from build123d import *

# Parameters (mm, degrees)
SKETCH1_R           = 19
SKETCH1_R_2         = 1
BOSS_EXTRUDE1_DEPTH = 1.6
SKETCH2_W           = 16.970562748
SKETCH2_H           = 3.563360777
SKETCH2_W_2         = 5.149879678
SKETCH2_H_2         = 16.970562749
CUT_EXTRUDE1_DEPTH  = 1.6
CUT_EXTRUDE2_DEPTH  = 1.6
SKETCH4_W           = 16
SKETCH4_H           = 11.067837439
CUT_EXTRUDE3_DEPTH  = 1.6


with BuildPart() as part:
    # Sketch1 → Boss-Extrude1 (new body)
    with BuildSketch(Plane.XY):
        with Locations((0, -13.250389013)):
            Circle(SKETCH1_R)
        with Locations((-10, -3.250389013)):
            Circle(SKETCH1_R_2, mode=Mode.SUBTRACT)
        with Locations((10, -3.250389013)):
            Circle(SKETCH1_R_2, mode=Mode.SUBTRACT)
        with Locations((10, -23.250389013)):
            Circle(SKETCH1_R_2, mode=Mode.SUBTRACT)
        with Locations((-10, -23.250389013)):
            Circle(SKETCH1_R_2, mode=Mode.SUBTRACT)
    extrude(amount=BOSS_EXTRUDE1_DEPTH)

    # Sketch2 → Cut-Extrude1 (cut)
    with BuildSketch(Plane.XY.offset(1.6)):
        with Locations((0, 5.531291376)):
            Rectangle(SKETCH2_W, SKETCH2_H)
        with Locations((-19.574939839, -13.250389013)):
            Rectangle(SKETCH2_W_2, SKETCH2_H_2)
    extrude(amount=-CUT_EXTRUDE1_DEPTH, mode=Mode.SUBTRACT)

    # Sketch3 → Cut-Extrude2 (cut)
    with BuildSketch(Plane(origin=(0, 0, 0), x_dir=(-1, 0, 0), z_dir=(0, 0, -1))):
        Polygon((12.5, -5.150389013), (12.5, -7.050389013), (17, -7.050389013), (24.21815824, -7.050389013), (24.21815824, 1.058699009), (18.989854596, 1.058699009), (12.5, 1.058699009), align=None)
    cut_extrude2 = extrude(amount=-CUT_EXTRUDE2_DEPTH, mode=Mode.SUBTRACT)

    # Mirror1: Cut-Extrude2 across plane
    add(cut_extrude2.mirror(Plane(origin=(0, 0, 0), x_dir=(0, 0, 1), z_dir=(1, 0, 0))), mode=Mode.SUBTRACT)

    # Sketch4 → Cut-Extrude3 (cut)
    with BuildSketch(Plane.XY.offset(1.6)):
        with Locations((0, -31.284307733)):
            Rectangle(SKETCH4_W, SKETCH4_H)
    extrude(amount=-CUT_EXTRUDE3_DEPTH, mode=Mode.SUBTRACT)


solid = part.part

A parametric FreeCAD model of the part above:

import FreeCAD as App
import Part
import Sketcher
Q = App.Units.Quantity


def add_polygon(sketch, points):
    """Adds a closed chain of lines whose ends are joined by coincident constraints."""
    first, n = sketch.GeometryCount, len(points)
    for a, b in zip(points, points[1:] + points[:1]):
        sketch.addGeometry(Part.LineSegment(App.Vector(*a, 0), App.Vector(*b, 0)), False)
    for i in range(n):
        sketch.addConstraint(Sketcher.Constraint("Coincident", first + i, 2, first + (i + 1) % n, 1))

doc = App.newDocument("Part")
body = doc.addObject("PartDesign::Body", "Body")

sketch1 = doc.addObject("Sketcher::SketchObject", "Sketch")
body.addObject(sketch1)
sketch1.AttachmentSupport = (doc.XY_Plane, [""])
sketch1.MapMode = "FlatFace"
sketch1.addGeometry(Part.Circle(App.Vector(0, -13.3, 0), App.Vector(0, 0, 1), 19), False)
sketch1.addGeometry(Part.Circle(App.Vector(-10, -23.3, 0), App.Vector(0, 0, 1), 1), False)
sketch1.addGeometry(Part.Circle(App.Vector(10, -23.3, 0), App.Vector(0, 0, 1), 1), False)
sketch1.addGeometry(Part.Circle(App.Vector(-10, -3.3, 0), App.Vector(0, 0, 1), 1), False)
sketch1.addGeometry(Part.Circle(App.Vector(10, -3.3, 0), App.Vector(0, 0, 1), 1), False)
sketch1.addConstraint(Sketcher.Constraint("Equal", 1, 2))
sketch1.addConstraint(Sketcher.Constraint("Equal", 2, 3))
sketch1.addConstraint(Sketcher.Constraint("Equal", 3, 4))
sketch1.addConstraint(Sketcher.Constraint("Symmetric", 1, 3, 2, 3, -2))
sketch1.addConstraint(Sketcher.Constraint("Symmetric", 3, 3, 4, 3, -2))
sketch1.addConstraint(Sketcher.Constraint("PointOnObject", 0, 3, -2))
sketch1.addConstraint(Sketcher.Constraint("Vertical", 1, 3, 3, 3))
sketch1.addConstraint(Sketcher.Constraint("Diameter", 0, Q("38 mm")))
sketch1.addConstraint(Sketcher.Constraint("Diameter", 1, Q("2 mm")))
sketch1.addConstraint(Sketcher.Constraint("DistanceX", 1, 3, -1, 1, Q("10 mm")))
sketch1.addConstraint(Sketcher.Constraint("DistanceY", 1, 3, 0, 3, Q("10 mm")))
sketch1.addConstraint(Sketcher.Constraint("DistanceY", 0, 3, 3, 3, Q("10 mm")))
sketch1.addConstraint(Sketcher.Constraint("DistanceY", 0, 3, -1, 1, Q("13.250389 mm")))
pad1 = doc.addObject("PartDesign::Pad", "Pad")
body.addObject(pad1)
pad1.Profile = sketch1
pad1.Length = 1.6

sketch2 = doc.addObject("Sketcher::SketchObject", "Sketch001")
body.addObject(sketch2)
sketch2.AttachmentSupport = (doc.XY_Plane, [""])
sketch2.MapMode = "FlatFace"
sketch2.AttachmentOffset = App.Placement(App.Vector(0, 0, 1.6), App.Rotation())
add_polygon(sketch2, [(-8.5, 7.3), (-8.5, 3.7), (8.5, 3.7), (8.5, 7.3)])
add_polygon(sketch2, [(-22.1, -4.8), (-22.1, -21.7), (-17, -21.7), (-17, -4.8)])
sketch2.addConstraint(Sketcher.Constraint("Vertical", 0))
sketch2.addConstraint(Sketcher.Constraint("Horizontal", 1))
sketch2.addConstraint(Sketcher.Constraint("Vertical", 2))
sketch2.addConstraint(Sketcher.Constraint("Horizontal", 3))
sketch2.addConstraint(Sketcher.Constraint("Vertical", 4))
sketch2.addConstraint(Sketcher.Constraint("Horizontal", 5))
sketch2.addConstraint(Sketcher.Constraint("Vertical", 6))
sketch2.addConstraint(Sketcher.Constraint("Horizontal", 7))
sketch2.addConstraint(Sketcher.Constraint("Equal", 3, 4))
sketch2.addConstraint(Sketcher.Constraint("DistanceX", 5, 2, -1, 1, Q("17 mm")))
sketch2.addConstraint(Sketcher.Constraint("DistanceX", 5, 1, 5, 2, Q("5.14988 mm")))
sketch2.addConstraint(Sketcher.Constraint("DistanceY", 0, 2, 0, 1, Q("3.563361 mm")))
sketch2.addConstraint(Sketcher.Constraint("DistanceX", 4, 2, 0, 2, Q("13.664598 mm")))
sketch2.addConstraint(Sketcher.Constraint("DistanceX", 1, 1, 1, 2, Q("16.970563 mm")))
sketch2.addConstraint(Sketcher.Constraint("DistanceY", -1, 1, 0, 2, Q("3.749611 mm")))
sketch2.addConstraint(Sketcher.Constraint("DistanceY", 4, 2, -1, 1, Q("21.73567 mm")))
pocket1 = doc.addObject("PartDesign::Pocket", "Pocket")
body.addObject(pocket1)
pocket1.Profile = sketch2
pocket1.Length = 1.6

sketch3 = doc.addObject("Sketcher::SketchObject", "Sketch002")
body.addObject(sketch3)
sketch3.AttachmentSupport = (doc.XY_Plane, [""])
sketch3.MapMode = "FlatFace"
add_polygon(sketch3, [(-12, -7), (-24, -7), (-24, 1), (-12, 1)])
sketch3.addConstraint(Sketcher.Constraint("Horizontal", 0))
sketch3.addConstraint(Sketcher.Constraint("Vertical", 1))
sketch3.addConstraint(Sketcher.Constraint("Horizontal", 2))
sketch3.addConstraint(Sketcher.Constraint("Vertical", 3))
sketch3.addConstraint(Sketcher.Constraint("DistanceX", 2, 2, -1, 1, Q("12.5 mm")))
sketch3.addConstraint(Sketcher.Constraint("DistanceX", 0, 2, 0, 1, Q("11.718158 mm")))
sketch3.addConstraint(Sketcher.Constraint("DistanceY", 1, 1, 1, 2, Q("8.109088 mm")))
sketch3.addConstraint(Sketcher.Constraint("DistanceY", -1, 1, 1, 2, Q("1.058699 mm")))
pocket2 = doc.addObject("PartDesign::Pocket", "Pocket001")
body.addObject(pocket2)
pocket2.Profile = sketch3
pocket2.Length = 1.6
pocket2.Reversed = True
doc.recompute()

mirrored = doc.addObject("PartDesign::Mirrored", "Mirrored")
body.addObject(mirrored)
mirrored.Originals = [pocket2]
mirrored.MirrorPlane = (doc.YZ_Plane, [""])
body.Tip = mirrored

sketch4 = doc.addObject("Sketcher::SketchObject", "Sketch003")
body.addObject(sketch4)
sketch4.AttachmentSupport = (doc.XY_Plane, [""])
sketch4.MapMode = "FlatFace"
sketch4.AttachmentOffset = App.Placement(App.Vector(0, 0, 1.6), App.Rotation())
add_polygon(sketch4, [(-8, -26), (-8, -37), (8, -37), (8, -26)])
sketch4.addConstraint(Sketcher.Constraint("Vertical", 0))
sketch4.addConstraint(Sketcher.Constraint("Horizontal", 1))
sketch4.addConstraint(Sketcher.Constraint("Vertical", 2))
sketch4.addConstraint(Sketcher.Constraint("Horizontal", 3))
sketch4.addConstraint(Sketcher.Constraint("DistanceX", 1, 1, 1, 2, Q("16 mm")))
sketch4.addConstraint(Sketcher.Constraint("DistanceX", 0, 2, -1, 1, Q("8 mm")))
sketch4.addConstraint(Sketcher.Constraint("DistanceY", 0, 2, 0, 1, Q("11.067837 mm")))
sketch4.addConstraint(Sketcher.Constraint("DistanceY", 2, 2, -1, 1, Q("25.750389 mm")))
pocket3 = doc.addObject("PartDesign::Pocket", "Pocket002")
body.addObject(pocket3)
pocket3.Profile = sketch4
pocket3.Length = 1.6

doc.recompute()
